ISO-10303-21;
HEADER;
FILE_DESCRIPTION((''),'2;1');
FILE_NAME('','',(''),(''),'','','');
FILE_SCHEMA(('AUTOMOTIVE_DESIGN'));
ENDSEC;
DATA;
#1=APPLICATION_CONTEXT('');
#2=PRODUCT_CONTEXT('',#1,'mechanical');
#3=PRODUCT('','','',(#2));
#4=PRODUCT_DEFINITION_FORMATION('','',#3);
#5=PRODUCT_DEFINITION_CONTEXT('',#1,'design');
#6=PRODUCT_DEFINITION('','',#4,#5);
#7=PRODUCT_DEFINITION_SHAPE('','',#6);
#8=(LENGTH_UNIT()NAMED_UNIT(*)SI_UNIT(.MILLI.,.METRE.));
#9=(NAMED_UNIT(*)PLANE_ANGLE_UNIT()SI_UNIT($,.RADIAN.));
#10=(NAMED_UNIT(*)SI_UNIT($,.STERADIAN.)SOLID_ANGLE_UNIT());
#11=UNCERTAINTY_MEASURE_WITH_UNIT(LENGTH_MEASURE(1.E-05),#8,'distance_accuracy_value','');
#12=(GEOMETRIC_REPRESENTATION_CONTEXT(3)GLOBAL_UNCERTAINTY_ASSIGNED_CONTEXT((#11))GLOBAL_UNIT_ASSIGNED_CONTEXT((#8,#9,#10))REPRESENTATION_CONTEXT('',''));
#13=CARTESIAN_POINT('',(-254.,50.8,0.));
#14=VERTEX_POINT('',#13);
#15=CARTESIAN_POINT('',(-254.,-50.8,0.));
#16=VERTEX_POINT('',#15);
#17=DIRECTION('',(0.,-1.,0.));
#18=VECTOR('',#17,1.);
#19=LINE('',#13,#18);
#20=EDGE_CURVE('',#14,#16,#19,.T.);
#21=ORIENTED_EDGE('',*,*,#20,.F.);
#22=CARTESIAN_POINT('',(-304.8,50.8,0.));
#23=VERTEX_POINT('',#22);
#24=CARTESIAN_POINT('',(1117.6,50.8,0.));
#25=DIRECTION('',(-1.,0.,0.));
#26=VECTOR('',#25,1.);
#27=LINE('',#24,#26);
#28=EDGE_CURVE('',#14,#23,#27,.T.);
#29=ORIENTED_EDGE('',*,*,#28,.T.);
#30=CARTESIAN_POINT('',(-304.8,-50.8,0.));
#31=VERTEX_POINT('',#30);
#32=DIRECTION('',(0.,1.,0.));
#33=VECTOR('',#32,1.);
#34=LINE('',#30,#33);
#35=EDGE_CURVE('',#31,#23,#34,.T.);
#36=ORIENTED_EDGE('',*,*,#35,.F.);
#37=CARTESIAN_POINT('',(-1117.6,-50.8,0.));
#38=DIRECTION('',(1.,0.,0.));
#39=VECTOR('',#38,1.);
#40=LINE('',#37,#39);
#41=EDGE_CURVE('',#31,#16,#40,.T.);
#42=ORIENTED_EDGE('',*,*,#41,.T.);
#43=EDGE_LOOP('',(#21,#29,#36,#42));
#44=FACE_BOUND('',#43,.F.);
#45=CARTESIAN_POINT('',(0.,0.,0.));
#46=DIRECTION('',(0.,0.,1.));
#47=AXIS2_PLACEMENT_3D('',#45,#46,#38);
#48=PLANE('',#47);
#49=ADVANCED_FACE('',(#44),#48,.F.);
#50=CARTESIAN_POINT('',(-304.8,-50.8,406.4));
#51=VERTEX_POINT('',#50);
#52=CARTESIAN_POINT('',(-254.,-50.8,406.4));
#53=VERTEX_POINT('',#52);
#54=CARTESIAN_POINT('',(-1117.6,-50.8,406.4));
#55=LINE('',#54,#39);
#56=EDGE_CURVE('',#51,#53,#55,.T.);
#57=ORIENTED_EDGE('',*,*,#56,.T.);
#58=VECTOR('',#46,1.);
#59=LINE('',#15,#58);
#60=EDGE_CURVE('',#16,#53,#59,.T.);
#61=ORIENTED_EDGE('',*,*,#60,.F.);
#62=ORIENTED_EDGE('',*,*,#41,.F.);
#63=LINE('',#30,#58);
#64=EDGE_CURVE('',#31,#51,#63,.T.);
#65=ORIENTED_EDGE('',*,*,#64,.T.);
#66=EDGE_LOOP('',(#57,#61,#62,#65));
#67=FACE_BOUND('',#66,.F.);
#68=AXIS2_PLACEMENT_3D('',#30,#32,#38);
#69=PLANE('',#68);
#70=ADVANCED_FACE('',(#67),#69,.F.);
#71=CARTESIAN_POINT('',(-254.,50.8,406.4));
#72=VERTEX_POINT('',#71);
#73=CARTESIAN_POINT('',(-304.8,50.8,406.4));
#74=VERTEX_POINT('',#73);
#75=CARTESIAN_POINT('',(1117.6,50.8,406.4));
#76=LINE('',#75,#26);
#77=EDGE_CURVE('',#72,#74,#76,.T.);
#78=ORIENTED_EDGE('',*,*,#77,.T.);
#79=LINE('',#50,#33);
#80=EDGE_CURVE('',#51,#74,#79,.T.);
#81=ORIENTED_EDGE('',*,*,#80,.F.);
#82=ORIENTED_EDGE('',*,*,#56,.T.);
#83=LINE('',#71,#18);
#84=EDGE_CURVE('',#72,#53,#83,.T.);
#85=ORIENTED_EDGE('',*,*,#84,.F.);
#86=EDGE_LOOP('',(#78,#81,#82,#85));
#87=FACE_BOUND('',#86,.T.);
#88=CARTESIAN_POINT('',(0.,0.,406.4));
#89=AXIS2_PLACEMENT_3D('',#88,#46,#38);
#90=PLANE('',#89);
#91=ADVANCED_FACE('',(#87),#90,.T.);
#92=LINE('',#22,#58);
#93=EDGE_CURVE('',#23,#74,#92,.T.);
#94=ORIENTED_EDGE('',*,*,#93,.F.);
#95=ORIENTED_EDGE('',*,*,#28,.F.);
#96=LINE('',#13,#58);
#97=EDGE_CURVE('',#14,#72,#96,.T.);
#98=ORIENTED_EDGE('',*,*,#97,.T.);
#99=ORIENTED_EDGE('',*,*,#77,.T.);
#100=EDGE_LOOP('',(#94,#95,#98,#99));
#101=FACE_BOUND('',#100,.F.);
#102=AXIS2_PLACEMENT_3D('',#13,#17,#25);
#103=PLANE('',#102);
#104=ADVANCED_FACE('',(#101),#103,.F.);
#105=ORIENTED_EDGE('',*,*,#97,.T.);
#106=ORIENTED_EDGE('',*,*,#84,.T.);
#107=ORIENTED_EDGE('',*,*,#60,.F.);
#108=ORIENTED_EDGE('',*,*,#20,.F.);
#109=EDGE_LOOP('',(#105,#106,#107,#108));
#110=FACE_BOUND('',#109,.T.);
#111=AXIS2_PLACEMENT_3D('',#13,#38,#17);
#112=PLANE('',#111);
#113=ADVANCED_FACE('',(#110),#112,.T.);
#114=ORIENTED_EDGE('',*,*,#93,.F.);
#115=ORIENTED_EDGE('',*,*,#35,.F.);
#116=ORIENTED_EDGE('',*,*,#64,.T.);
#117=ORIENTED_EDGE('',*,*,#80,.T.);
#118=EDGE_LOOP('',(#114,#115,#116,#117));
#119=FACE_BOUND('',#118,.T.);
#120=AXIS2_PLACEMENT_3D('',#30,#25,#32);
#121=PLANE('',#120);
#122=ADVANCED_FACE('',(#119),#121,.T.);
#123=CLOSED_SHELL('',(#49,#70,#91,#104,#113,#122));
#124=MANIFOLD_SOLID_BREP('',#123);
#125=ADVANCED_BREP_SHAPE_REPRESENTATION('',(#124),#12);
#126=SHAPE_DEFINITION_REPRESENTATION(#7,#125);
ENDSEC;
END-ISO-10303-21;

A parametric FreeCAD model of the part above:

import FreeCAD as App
import Part
import Sketcher
from FreeCAD import Vector
Q = App.Units.Quantity

doc = App.newDocument("Part")
body = doc.addObject("PartDesign::Body", "Body")

# Sketch on XY plane
sketch1 = body.newObject("Sketcher::SketchObject", "Sketch")
sketch1.AttachmentSupport = (doc.getObject("XY_Plane"), [""])
sketch1.MapMode = "FlatFace"
sketch1.addGeometry([
    Part.LineSegment(Vector(-305, 51, 0), Vector(-305, -51, 0)),
    Part.LineSegment(Vector(-305, -51, 0), Vector(-254, -51, 0)),
    Part.LineSegment(Vector(-254, -51, 0), Vector(-254, 51, 0)),
    Part.LineSegment(Vector(-254, 51, 0), Vector(-305, 51, 0)),
], False)
sketch1.addConstraint([
    Sketcher.Constraint("Coincident", 0, 2, 1, 1),
    Sketcher.Constraint("Coincident", 1, 2, 2, 1),
    Sketcher.Constraint("Coincident", 2, 2, 3, 1),
    Sketcher.Constraint("Coincident", 3, 2, 0, 1),
    Sketcher.Constraint("Vertical", 0),
    Sketcher.Constraint("Horizontal", 1),
    Sketcher.Constraint("Vertical", 2),
    Sketcher.Constraint("Horizontal", 3),
    Sketcher.Constraint("DistanceX", 1, 1, 1, 2, Q("2 in")),
    Sketcher.Constraint("DistanceY", 0, 2, -1, 1, Q("2 in")),
    Sketcher.Constraint("DistanceY", -1, 1, 2, 2, Q("2 in")),
    Sketcher.Constraint("DistanceX", 0, 2, -1, 1, Q("12 in")),
])
pad1 = body.newObject("PartDesign::Pad", "Pad")
pad1.Profile = sketch1
pad1.Length = Q("16 in")

doc.recompute()
